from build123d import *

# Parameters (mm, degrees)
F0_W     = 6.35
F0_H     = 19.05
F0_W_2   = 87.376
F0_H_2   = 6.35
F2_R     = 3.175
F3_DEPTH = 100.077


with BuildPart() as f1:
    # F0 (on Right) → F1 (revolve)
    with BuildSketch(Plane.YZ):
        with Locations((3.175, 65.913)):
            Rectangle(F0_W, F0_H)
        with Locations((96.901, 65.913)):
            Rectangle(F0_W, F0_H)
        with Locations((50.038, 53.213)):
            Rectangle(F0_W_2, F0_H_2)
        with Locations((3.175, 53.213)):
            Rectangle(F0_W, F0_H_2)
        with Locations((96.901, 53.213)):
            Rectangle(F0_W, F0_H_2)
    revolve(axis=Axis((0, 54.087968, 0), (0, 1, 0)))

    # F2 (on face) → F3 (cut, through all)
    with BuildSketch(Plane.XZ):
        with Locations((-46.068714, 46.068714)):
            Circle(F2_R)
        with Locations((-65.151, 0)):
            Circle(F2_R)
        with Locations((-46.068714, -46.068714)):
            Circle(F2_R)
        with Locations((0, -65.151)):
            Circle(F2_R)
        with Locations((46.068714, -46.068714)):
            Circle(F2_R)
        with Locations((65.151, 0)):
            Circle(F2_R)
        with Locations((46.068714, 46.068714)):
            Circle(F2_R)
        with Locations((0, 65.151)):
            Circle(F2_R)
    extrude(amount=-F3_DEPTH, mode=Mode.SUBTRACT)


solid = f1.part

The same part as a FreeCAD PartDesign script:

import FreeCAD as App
import Part
import Sketcher
Q = App.Units.Quantity


def add_polygon(sketch, points):
    """Adds a closed chain of lines whose ends are joined by coincident constraints."""
    first, n = sketch.GeometryCount, len(points)
    for a, b in zip(points, points[1:] + points[:1]):
        sketch.addGeometry(Part.LineSegment(App.Vector(*a, 0), App.Vector(*b, 0)), False)
    for i in range(n):
        sketch.addConstraint(Sketcher.Constraint("Coincident", first + i, 2, first + (i + 1) % n, 1))

doc = App.newDocument("Part")
params = doc.addObject("Spreadsheet::Sheet", "Params")
for row, (alias, value) in enumerate([
    ("sketch1_height", "1 in"),
    ("sketch1_width", "3.94 in"),
    ("sketch1_width2", "0.25 in"),
    ("sketch1_height2", "0.75 in"),
    ("revolution_angle", "360 deg"),
    ("sketch2_diameter", "0.25 in"),
], start=1):
    params.set(f"A{row}", alias)
    params.set(f"B{row}", "=" + value)
    params.setAlias(f"B{row}", alias)

body = doc.addObject("PartDesign::Body", "Body")

sketch1 = body.newObject("Sketcher::SketchObject", "Sketch")
sketch1.AttachmentSupport = (doc.getObject("YZ_Plane"), [""])
sketch1.MapMode = "FlatFace"
add_polygon(sketch1, [(0, 75), (0, 50), (100, 50), (100, 75), (94, 75), (94, 56), (6, 56), (6, 75)])
sketch1.addConstraint(Sketcher.Constraint("Vertical", 0))
sketch1.addConstraint(Sketcher.Constraint("Horizontal", 1))
sketch1.addConstraint(Sketcher.Constraint("Vertical", 2))
sketch1.addConstraint(Sketcher.Constraint("Horizontal", 3))
sketch1.addConstraint(Sketcher.Constraint("Vertical", 4))
sketch1.addConstraint(Sketcher.Constraint("Horizontal", 5))
sketch1.addConstraint(Sketcher.Constraint("Vertical", 6))
sketch1.addConstraint(Sketcher.Constraint("Horizontal", 7))
sketch1.addConstraint(Sketcher.Constraint("PointOnObject", 0, 2, -2))
sketch1.addConstraint(Sketcher.Constraint("Horizontal", 3, 2, 6, 2))
sketch1.addConstraint(Sketcher.Constraint("Equal", 3, 7))
sketch1.addConstraint(Sketcher.Constraint("DistanceY", 0, 2, 0, 1, Q("1 in")))
sketch1.addConstraint(Sketcher.Constraint("DistanceX", 1, 1, 1, 2, Q("3.94 in")))
sketch1.addConstraint(Sketcher.Constraint("DistanceX", 3, 2, 3, 1, Q("0.25 in")))
sketch1.addConstraint(Sketcher.Constraint("DistanceY", 4, 2, 4, 1, Q("0.75 in")))
sketch1.addConstraint(Sketcher.Constraint("DistanceY", -1, 1, 0, 2, Q("1.97 in")))
sketch1.setExpression("Constraints[19]", "Params.sketch1_height")
sketch1.setExpression("Constraints[20]", "Params.sketch1_width")
sketch1.setExpression("Constraints[21]", "Params.sketch1_width2")
sketch1.setExpression("Constraints[22]", "Params.sketch1_height2")
revolution = body.newObject("PartDesign::Revolution", "Revolution")
revolution.Profile = sketch1
revolution.ReferenceAxis = (sketch1, ["H_Axis"])
revolution.setExpression("Angle", "Params.revolution_angle")

sketch2 = body.newObject("Sketcher::SketchObject", "Sketch001")
sketch2.AttachmentSupport = (doc.getObject("XZ_Plane"), [""])
sketch2.MapMode = "FlatFace"
sketch2.addGeometry(Part.Circle(App.Vector(-46.1, 46.1, 0), App.Vector(0, 0, 1), 3.2), False)
sketch2.addGeometry(Part.Circle(App.Vector(-65.2, 0, 0), App.Vector(0, 0, 1), 3.2), False)
sketch2.addGeometry(Part.Circle(App.Vector(-46.1, -46.1, 0), App.Vector(0, 0, 1), 3.2), False)
sketch2.addGeometry(Part.Circle(App.Vector(0, -65.2, 0), App.Vector(0, 0, 1), 3.2), False)
sketch2.addGeometry(Part.Circle(App.Vector(46.1, -46.1, 0), App.Vector(0, 0, 1), 3.2), False)
sketch2.addGeometry(Part.Circle(App.Vector(65.2, 0, 0), App.Vector(0, 0, 1), 3.2), False)
sketch2.addGeometry(Part.Circle(App.Vector(46.1, 46.1, 0), App.Vector(0, 0, 1), 3.2), False)
sketch2.addGeometry(Part.Circle(App.Vector(0, 65.2, 0), App.Vector(0, 0, 1), 3.2), False)
sketch2.addConstraint(Sketcher.Constraint("Equal", 0, 1))
sketch2.addConstraint(Sketcher.Constraint("Equal", 1, 2))
sketch2.addConstraint(Sketcher.Constraint("Equal", 2, 3))
sketch2.addConstraint(Sketcher.Constraint("Equal", 3, 4))
sketch2.addConstraint(Sketcher.Constraint("Equal", 4, 5))
sketch2.addConstraint(Sketcher.Constraint("Equal", 5, 6))
sketch2.addConstraint(Sketcher.Constraint("Equal", 6, 7))
sketch2.addConstraint(Sketcher.Constraint("Symmetric", 0, 3, 4, 3, -1, 1))
sketch2.addConstraint(Sketcher.Constraint("Symmetric", 1, 3, 5, 3, -1, 1))
sketch2.addConstraint(Sketcher.Constraint("Symmetric", 2, 3, 6, 3, -1, 1))
sketch2.addConstraint(Sketcher.Constraint("Symmetric", 3, 3, 7, 3, -1, 1))
sketch2.addConstraint(Sketcher.Constraint("Symmetric", 2, 3, 4, 3, -2))
sketch2.addConstraint(Sketcher.Constraint("PointOnObject", 1, 3, -1))
sketch2.addConstraint(Sketcher.Constraint("PointOnObject", 3, 3, -2))
sketch2.addConstraint(Sketcher.Constraint("Diameter", 0, Q("0.25 in")))
sketch2.addConstraint(Sketcher.Constraint("DistanceX", 1, 3, 5, 3, Q("5.13 in")))
sketch2.addConstraint(Sketcher.Constraint("DistanceY", 3, 3, -1, 1, Q("2.565 in")))
sketch2.addConstraint(Sketcher.Constraint("DistanceY", 2, 3, 0, 3, 92.137428))
sketch2.addConstraint(Sketcher.Constraint("DistanceX", 2, 3, 4, 3, 92.137428))
sketch2.setExpression("Constraints[14]", "Params.sketch2_diameter")
pocket1 = body.newObject("PartDesign::Pocket", "Pocket")
pocket1.Profile = sketch2
pocket1.Type = "ThroughAll"

doc.recompute()
